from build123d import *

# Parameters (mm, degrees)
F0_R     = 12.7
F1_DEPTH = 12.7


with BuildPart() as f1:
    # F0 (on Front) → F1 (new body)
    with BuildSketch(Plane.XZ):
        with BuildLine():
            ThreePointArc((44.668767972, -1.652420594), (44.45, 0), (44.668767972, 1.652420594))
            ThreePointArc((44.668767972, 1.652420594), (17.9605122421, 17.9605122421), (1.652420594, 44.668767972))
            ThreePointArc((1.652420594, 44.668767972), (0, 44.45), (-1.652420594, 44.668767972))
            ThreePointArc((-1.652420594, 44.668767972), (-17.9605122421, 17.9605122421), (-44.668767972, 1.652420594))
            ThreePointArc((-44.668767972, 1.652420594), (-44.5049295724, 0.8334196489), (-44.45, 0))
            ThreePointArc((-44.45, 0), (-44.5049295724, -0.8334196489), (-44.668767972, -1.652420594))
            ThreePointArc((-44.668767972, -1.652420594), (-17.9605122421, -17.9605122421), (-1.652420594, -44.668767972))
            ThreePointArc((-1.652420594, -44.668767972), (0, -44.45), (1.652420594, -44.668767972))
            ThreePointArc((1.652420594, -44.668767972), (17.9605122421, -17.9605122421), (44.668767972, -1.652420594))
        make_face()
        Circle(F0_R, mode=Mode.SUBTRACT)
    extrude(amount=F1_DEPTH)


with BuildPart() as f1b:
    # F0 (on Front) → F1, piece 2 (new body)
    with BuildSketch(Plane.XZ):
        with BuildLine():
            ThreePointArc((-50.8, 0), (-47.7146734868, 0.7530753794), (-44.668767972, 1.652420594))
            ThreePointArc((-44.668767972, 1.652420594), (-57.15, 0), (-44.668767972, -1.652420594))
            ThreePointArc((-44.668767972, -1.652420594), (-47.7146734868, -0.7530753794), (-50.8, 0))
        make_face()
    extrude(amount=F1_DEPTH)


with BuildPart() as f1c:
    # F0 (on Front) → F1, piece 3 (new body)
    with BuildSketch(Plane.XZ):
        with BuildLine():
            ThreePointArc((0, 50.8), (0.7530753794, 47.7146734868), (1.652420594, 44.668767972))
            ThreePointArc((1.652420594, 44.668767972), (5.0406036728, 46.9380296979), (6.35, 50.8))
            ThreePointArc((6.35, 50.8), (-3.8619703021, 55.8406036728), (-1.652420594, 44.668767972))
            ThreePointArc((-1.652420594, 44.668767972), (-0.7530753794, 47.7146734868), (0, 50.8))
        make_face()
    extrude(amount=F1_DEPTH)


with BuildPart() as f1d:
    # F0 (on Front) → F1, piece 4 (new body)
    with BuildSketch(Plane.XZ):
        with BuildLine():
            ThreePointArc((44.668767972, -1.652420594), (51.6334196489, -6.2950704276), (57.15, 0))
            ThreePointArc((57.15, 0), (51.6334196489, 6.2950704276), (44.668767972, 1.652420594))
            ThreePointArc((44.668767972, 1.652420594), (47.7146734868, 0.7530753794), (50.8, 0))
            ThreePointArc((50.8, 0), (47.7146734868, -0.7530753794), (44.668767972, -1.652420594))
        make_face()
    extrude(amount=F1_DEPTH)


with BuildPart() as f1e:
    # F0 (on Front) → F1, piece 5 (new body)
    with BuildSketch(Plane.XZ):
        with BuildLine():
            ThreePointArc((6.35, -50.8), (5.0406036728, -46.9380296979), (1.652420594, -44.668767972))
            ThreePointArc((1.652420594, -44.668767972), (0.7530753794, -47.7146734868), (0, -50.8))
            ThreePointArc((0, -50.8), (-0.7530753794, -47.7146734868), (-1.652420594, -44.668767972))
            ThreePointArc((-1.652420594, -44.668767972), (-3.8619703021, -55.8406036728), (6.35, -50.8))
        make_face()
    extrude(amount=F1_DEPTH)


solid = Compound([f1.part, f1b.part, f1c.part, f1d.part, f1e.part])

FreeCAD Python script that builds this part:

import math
import FreeCAD as App
import Part
import Sketcher

V = App.Vector
Q = App.Units.Quantity

doc = App.newDocument("Part")
params = doc.addObject("Spreadsheet::Sheet", "Params")
for row, (alias, value) in enumerate([
    ("sketch1_diameter", "1 in"),
    ("sketch1_radius", "0.25 in"),
    ("pad1_length", "0.5 in"),
    ("sketch2_radius", "0.25 in"),
    ("pad2_length", "0.5 in"),
    ("sketch3_radius", "0.25 in"),
    ("pad3_length", "0.5 in"),
    ("sketch4_radius", "0.25 in"),
    ("pad4_length", "0.5 in"),
    ("sketch5_radius", "0.25 in"),
    ("pad5_length", "0.5 in"),
], start=1):
    params.set(f"A{row}", alias)
    params.set(f"B{row}", "=" + value)
    params.setAlias(f"B{row}", alias)

body = doc.addObject("PartDesign::Body", "Body")

sketch1 = body.newObject("Sketcher::SketchObject", "Sketch")
sketch1.AttachmentSupport = (doc.getObject("XZ_Plane"), [""])
sketch1.MapMode = "FlatFace"
sketch1.addGeometry([
    Part.ArcOfCircle(Part.Circle(V(50.8, 0, 0), V(0, 0, 1), 6.35), math.radians(164.916663), math.radians(195.083337)),
    Part.ArcOfCircle(Part.Circle(V(65.040768, 65.040768, 0), V(0, 0, 1), 66.581537), math.radians(-162.183426), math.radians(-107.816574)),
    Part.ArcOfCircle(Part.Circle(V(0, 50.8, 0), V(0, 0, 1), 6.35), math.radians(-105.083337), math.radians(-74.916663)),
    Part.ArcOfCircle(Part.Circle(V(-65.040768, 65.040768, 0), V(0, 0, 1), 66.581537), math.radians(-72.183426), math.radians(-17.816574)),
    Part.ArcOfCircle(Part.Circle(V(-50.8, 0, 0), V(0, 0, 1), 6.35), math.radians(0), math.radians(15.083337)),
    Part.ArcOfCircle(Part.Circle(V(-50.8, 0, 0), V(0, 0, 1), 6.35), math.radians(-15.083337), math.radians(0)),
    Part.ArcOfCircle(Part.Circle(V(-65.040768, -65.040768, 0), V(0, 0, 1), 66.581537), math.radians(17.816574), math.radians(72.183426)),
    Part.ArcOfCircle(Part.Circle(V(0, -50.8, 0), V(0, 0, 1), 6.35), math.radians(74.916663), math.radians(105.083337)),
    Part.ArcOfCircle(Part.Circle(V(65.040768, -65.040768, 0), V(0, 0, 1), 66.581537), math.radians(107.816574), math.radians(162.183426)),
    Part.Circle(V(0, 0, 0), V(0, 0, 1), 12.7),
], False)
sketch1.addConstraint([
    Sketcher.Constraint("Coincident", 0, 1, 1, 2),
    Sketcher.Constraint("Coincident", 1, 1, 2, 2),
    Sketcher.Constraint("Coincident", 2, 1, 3, 2),
    Sketcher.Constraint("Coincident", 3, 1, 4, 2),
    Sketcher.Constraint("Tangent", 4, 1, 5, 2),
    Sketcher.Constraint("Coincident", 5, 1, 6, 2),
    Sketcher.Constraint("Coincident", 6, 1, 7, 2),
    Sketcher.Constraint("Coincident", 7, 1, 8, 2),
    Sketcher.Constraint("Coincident", 8, 1, 0, 2),
    Sketcher.Constraint("Coincident", 9, 3, -1, 1),
    Sketcher.Constraint("Equal", 0, 2),
    Sketcher.Constraint("Equal", 1, 3),
    Sketcher.Constraint("Equal", 2, 4),
    Sketcher.Constraint("Equal", 4, 5),
    Sketcher.Constraint("Equal", 3, 6),
    Sketcher.Constraint("Equal", 5, 7),
    Sketcher.Constraint("Equal", 6, 8),
    Sketcher.Constraint("Symmetric", 0, 3, 4, 3, -1, 1),
    Sketcher.Constraint("Symmetric", 1, 3, 6, 3, -1, 1),
    Sketcher.Constraint("Symmetric", 2, 3, 7, 3, -1, 1),
    Sketcher.Constraint("Symmetric", 3, 3, 8, 3, -1, 1),
    Sketcher.Constraint("Symmetric", 1, 3, 3, 3, -2),
    Sketcher.Constraint("PointOnObject", 0, 3, -1),
    Sketcher.Constraint("PointOnObject", 2, 3, -2),
    Sketcher.Constraint("PointOnObject", 4, 1, -1),
    Sketcher.Constraint("Diameter", 9, Q("1 in")),
    Sketcher.Constraint("Radius", 0, Q("0.25 in")),
    Sketcher.Constraint("DistanceX", -1, 1, 0, 3, Q("2 in")),
    Sketcher.Constraint("DistanceY", -1, 1, 2, 3, Q("2 in")),
    Sketcher.Constraint("Radius", 1, 66.581537),
    Sketcher.Constraint("DistanceX", 0, 1, 1, 3, 20.372),
    Sketcher.Constraint("DistanceY", 1, 1, 1, 3, 20.372),
])
sketch1.setExpression("Constraints[25]", "Params.sketch1_diameter")
sketch1.setExpression("Constraints[26]", "Params.sketch1_radius")
pad1 = body.newObject("PartDesign::Pad", "Pad")
pad1.Profile = sketch1
pad1.setExpression("Length", "Params.pad1_length")
body2 = doc.addObject("PartDesign::Body", "Body001")

sketch2 = body2.newObject("Sketcher::SketchObject", "Sketch001")
sketch2.AttachmentSupport = (doc.getObject("XZ_Plane001"), [""])
sketch2.MapMode = "FlatFace"
sketch2.addGeometry([
    Part.ArcOfCircle(Part.Circle(V(-65.040768, 65.040768, 0), V(0, 0, 1), 66.581537), math.radians(-77.6499), math.radians(-72.183426)),
    Part.ArcOfCircle(Part.Circle(V(-50.8, 0, 0), V(0, 0, 1), 6.35), math.radians(15.083337), math.radians(344.916663)),
    Part.ArcOfCircle(Part.Circle(V(-65.040768, -65.040768, 0), V(0, 0, 1), 66.581537), math.radians(72.183426), math.radians(77.6499)),
], False)
sketch2.addConstraint([
    Sketcher.Constraint("Coincident", 0, 2, 1, 1),
    Sketcher.Constraint("Coincident", 1, 2, 2, 1),
    Sketcher.Constraint("Coincident", 2, 2, 0, 1),
    Sketcher.Constraint("Coincident", 2, 2, 1, 3),
    Sketcher.Constraint("Equal", 0, 2),
    Sketcher.Constraint("Symmetric", 0, 3, 2, 3, -1),
    Sketcher.Constraint("Radius", 1, Q("0.25 in")),
    Sketcher.Constraint("DistanceX", 1, 3, -1, 1, Q("2 in")),
    Sketcher.Constraint("Radius", 0, 66.581537),
    Sketcher.Constraint("DistanceX", 0, 3, 0, 2, 20.372),
])
sketch2.setExpression("Constraints[6]", "Params.sketch2_radius")
pad2 = body2.newObject("PartDesign::Pad", "Pad001")
pad2.Profile = sketch2
pad2.setExpression("Length", "Params.pad2_length")
body3 = doc.addObject("PartDesign::Body", "Body002")

sketch3 = body3.newObject("Sketcher::SketchObject", "Sketch002")
sketch3.AttachmentSupport = (doc.getObject("XZ_Plane002"), [""])
sketch3.MapMode = "FlatFace"
sketch3.addGeometry([
    Part.ArcOfCircle(Part.Circle(V(65.040768, 65.040768, 0), V(0, 0, 1), 66.581537), math.radians(-167.6499), math.radians(-162.183426)),
    Part.ArcOfCircle(Part.Circle(V(0, 50.8, 0), V(0, 0, 1), 6.35), math.radians(-74.916663), math.radians(0)),
    Part.ArcOfCircle(Part.Circle(V(0, 50.8, 0), V(0, 0, 1), 6.35), math.radians(0), math.radians(254.916663)),
    Part.ArcOfCircle(Part.Circle(V(-65.040768, 65.040768, 0), V(0, 0, 1), 66.581537), math.radians(-17.816574), math.radians(-12.3501)),
], False)
sketch3.addConstraint([
    Sketcher.Constraint("Coincident", 0, 2, 1, 1),
    Sketcher.Constraint("Tangent", 1, 2, 2, 1),
    Sketcher.Constraint("Coincident", 2, 2, 3, 1),
    Sketcher.Constraint("Coincident", 3, 2, 0, 1),
    Sketcher.Constraint("Coincident", 3, 2, 1, 3),
    Sketcher.Constraint("Equal", 1, 2),
    Sketcher.Constraint("Equal", 0, 3),
    Sketcher.Constraint("Symmetric", 0, 3, 3, 3, -2),
    Sketcher.Constraint("Horizontal", 2, 3, 1, 2),
    Sketcher.Constraint("Radius", 1, Q("0.25 in")),
    Sketcher.Constraint("DistanceY", -1, 1, 1, 3, Q("2 in")),
    Sketcher.Constraint("Radius", 0, 66.581537),
    Sketcher.Constraint("DistanceY", 0, 2, 0, 3, 20.372),
])
sketch3.setExpression("Constraints[9]", "Params.sketch3_radius")
pad3 = body3.newObject("PartDesign::Pad", "Pad002")
pad3.Profile = sketch3
pad3.setExpression("Length", "Params.pad3_length")
body4 = doc.addObject("PartDesign::Body", "Body003")

sketch4 = body4.newObject("Sketcher::SketchObject", "Sketch003")
sketch4.AttachmentSupport = (doc.getObject("XZ_Plane003"), [""])
sketch4.MapMode = "FlatFace"
sketch4.addGeometry([
    Part.ArcOfCircle(Part.Circle(V(50.8, 0, 0), V(0, 0, 1), 6.35), math.radians(-164.916663), math.radians(0)),
    Part.ArcOfCircle(Part.Circle(V(50.8, 0, 0), V(0, 0, 1), 6.35), math.radians(0), math.radians(164.916663)),
    Part.ArcOfCircle(Part.Circle(V(65.040768, 65.040768, 0), V(0, 0, 1), 66.581537), math.radians(-107.816574), math.radians(-102.3501)),
    Part.ArcOfCircle(Part.Circle(V(65.040768, -65.040768, 0), V(0, 0, 1), 66.581537), math.radians(102.3501), math.radians(107.816574)),
], False)
sketch4.addConstraint([
    Sketcher.Constraint("Tangent", 0, 2, 1, 1),
    Sketcher.Constraint("Coincident", 1, 2, 2, 1),
    Sketcher.Constraint("Coincident", 2, 2, 3, 1),
    Sketcher.Constraint("Coincident", 3, 2, 0, 1),
    Sketcher.Constraint("Coincident", 2, 2, 0, 3),
    Sketcher.Constraint("Equal", 0, 1),
    Sketcher.Constraint("Equal", 2, 3),
    Sketcher.Constraint("Symmetric", 2, 3, 3, 3, -1),
    Sketcher.Constraint("PointOnObject", 0, 2, -1),
    Sketcher.Constraint("Radius", 0, Q("0.25 in")),
    Sketcher.Constraint("DistanceX", -1, 1, 0, 3, Q("2 in")),
    Sketcher.Constraint("Radius", 2, 66.581537),
    Sketcher.Constraint("DistanceX", 1, 2, 2, 3, 20.372),
])
sketch4.setExpression("Constraints[9]", "Params.sketch4_radius")
pad4 = body4.newObject("PartDesign::Pad", "Pad003")
pad4.Profile = sketch4
pad4.setExpression("Length", "Params.pad4_length")
body5 = doc.addObject("PartDesign::Body", "Body004")

sketch5 = body5.newObject("Sketcher::SketchObject", "Sketch004")
sketch5.AttachmentSupport = (doc.getObject("XZ_Plane004"), [""])
sketch5.MapMode = "FlatFace"
sketch5.addGeometry([
    Part.ArcOfCircle(Part.Circle(V(0, -50.8, 0), V(0, 0, 1), 6.35), math.radians(0), math.radians(74.916663)),
    Part.ArcOfCircle(Part.Circle(V(65.040768, -65.040768, 0), V(0, 0, 1), 66.581537), math.radians(162.183426), math.radians(167.6499)),
    Part.ArcOfCircle(Part.Circle(V(-65.040768, -65.040768, 0), V(0, 0, 1), 66.581537), math.radians(12.3501), math.radians(17.816574)),
    Part.ArcOfCircle(Part.Circle(V(0, -50.8, 0), V(0, 0, 1), 6.35), math.radians(105.083337), math.radians(360)),
], False)
sketch5.addConstraint([
    Sketcher.Constraint("Coincident", 0, 2, 1, 1),
    Sketcher.Constraint("Coincident", 1, 2, 2, 1),
    Sketcher.Constraint("Coincident", 2, 2, 3, 1),
    Sketcher.Constraint("Tangent", 3, 2, 0, 1),
    Sketcher.Constraint("Coincident", 1, 2, 0, 3),
    Sketcher.Constraint("Equal", 1, 2),
    Sketcher.Constraint("Equal", 0, 3),
    Sketcher.Constraint("Symmetric", 1, 3, 2, 3, -2),
    Sketcher.Constraint("Horizontal", 1, 2, 3, 2),
    Sketcher.Constraint("Radius", 0, Q("0.25 in")),
    Sketcher.Constraint("DistanceY", 0, 3, -1, 1, Q("2 in")),
    Sketcher.Constraint("Radius", 1, 66.581537),
    Sketcher.Constraint("DistanceY", 1, 3, 0, 2, 20.372),
])
sketch5.setExpression("Constraints[9]", "Params.sketch5_radius")
pad5 = body5.newObject("PartDesign::Pad", "Pad004")
pad5.Profile = sketch5
pad5.setExpression("Length", "Params.pad5_length")

doc.recompute()
